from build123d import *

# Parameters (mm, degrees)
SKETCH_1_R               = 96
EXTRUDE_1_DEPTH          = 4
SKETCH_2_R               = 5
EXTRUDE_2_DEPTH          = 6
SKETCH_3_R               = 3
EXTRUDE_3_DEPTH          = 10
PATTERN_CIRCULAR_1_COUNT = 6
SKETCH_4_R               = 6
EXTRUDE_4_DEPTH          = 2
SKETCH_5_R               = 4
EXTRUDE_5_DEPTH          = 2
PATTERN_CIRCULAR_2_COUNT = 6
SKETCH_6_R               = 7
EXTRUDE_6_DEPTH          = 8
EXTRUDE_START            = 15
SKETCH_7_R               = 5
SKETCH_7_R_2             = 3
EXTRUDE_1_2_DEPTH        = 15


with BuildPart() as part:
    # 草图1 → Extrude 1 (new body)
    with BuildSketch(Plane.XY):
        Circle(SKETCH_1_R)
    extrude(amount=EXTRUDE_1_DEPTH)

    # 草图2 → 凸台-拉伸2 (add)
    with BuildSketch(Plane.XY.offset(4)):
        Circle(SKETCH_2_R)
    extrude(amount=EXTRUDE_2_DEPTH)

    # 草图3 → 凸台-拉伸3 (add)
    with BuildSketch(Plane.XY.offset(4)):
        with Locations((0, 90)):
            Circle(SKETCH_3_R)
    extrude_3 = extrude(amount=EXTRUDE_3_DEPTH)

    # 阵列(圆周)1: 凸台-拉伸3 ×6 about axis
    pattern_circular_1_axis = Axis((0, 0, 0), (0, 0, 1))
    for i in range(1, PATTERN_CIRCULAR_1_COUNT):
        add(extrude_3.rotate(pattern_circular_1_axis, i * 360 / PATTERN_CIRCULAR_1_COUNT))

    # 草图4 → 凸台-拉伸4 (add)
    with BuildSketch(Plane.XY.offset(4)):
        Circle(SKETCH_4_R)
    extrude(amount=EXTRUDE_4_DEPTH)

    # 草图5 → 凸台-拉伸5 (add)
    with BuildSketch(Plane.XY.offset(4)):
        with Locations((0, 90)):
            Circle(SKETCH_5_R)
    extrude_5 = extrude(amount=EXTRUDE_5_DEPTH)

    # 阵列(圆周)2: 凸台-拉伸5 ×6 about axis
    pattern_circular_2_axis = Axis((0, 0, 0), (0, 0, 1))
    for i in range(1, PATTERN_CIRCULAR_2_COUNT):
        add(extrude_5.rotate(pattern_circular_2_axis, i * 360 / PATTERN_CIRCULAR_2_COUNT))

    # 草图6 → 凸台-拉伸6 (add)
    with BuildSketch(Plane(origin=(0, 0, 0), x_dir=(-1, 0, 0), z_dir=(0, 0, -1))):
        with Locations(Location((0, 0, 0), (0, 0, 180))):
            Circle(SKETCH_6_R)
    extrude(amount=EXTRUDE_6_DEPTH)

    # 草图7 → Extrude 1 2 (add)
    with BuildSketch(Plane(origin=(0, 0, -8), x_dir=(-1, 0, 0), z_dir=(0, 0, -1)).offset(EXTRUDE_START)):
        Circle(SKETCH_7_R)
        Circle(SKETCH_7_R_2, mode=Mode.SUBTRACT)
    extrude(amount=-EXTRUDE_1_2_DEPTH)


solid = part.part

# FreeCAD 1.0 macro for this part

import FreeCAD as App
import Part
import Sketcher
from FreeCAD import Vector
Q = App.Units.Quantity

doc = App.newDocument("Part")
params = doc.addObject("Spreadsheet::Sheet", "Params")
for row, (alias, value) in enumerate([
    ("sketch1_diameter", "192 mm"),
    ("pad1_length", "4 mm"),
    ("sketch2_diameter", "10 mm"),
    ("pad2_length", "6 mm"),
    ("sketch3_diameter", "6 mm"),
    ("pad3_length", "10 mm"),
    ("sketch4_diameter", "12 mm"),
    ("pad4_length", "2 mm"),
    ("sketch5_diameter", "8 mm"),
    ("pad5_length", "2 mm"),
    ("sketch6_diameter", "14 mm"),
    ("pad6_length", "8 mm"),
    ("sketch7_diameter", "10 mm"),
    ("sketch7_diameter2", "6 mm"),
    ("pad7_length", "15 mm"),
], start=1):
    params.set(f"A{row}", alias)
    params.set(f"B{row}", "=" + value)
    params.setAlias(f"B{row}", alias)

body = doc.addObject("PartDesign::Body", "Body")

# Sketch on XY plane
sketch1 = doc.addObject("Sketcher::SketchObject", "Sketch")
body.addObject(sketch1)
sketch1.AttachmentSupport = (doc.XY_Plane, [""])
sketch1.MapMode = "FlatFace"
sketch1.addGeometry(Part.Circle(Vector(0, 0, 0), Vector(0, 0, 1), 96), False)
sketch1.addConstraint(Sketcher.Constraint("Coincident", 0, 3, -1, 1))
sketch1.addConstraint(Sketcher.Constraint("Diameter", 0, Q("192 mm")))
sketch1.setExpression("Constraints[1]", "Params.sketch1_diameter")
pad1 = doc.addObject("PartDesign::Pad", "Pad")
body.addObject(pad1)
pad1.Profile = sketch1
pad1.setExpression("Length", "Params.pad1_length")

# Sketch on XY plane
sketch2 = doc.addObject("Sketcher::SketchObject", "Sketch001")
body.addObject(sketch2)
sketch2.AttachmentSupport = (doc.XY_Plane, [""])
sketch2.MapMode = "FlatFace"
sketch2.AttachmentOffset = App.Placement(Vector(0, 0, 4), App.Rotation())
sketch2.addGeometry(Part.Circle(Vector(0, 0, 0), Vector(0, 0, 1), 5), False)
sketch2.addConstraint(Sketcher.Constraint("Coincident", 0, 3, -1, 1))
sketch2.addConstraint(Sketcher.Constraint("Diameter", 0, Q("10 mm")))
sketch2.setExpression("Constraints[1]", "Params.sketch2_diameter")
pad2 = doc.addObject("PartDesign::Pad", "Pad001")
body.addObject(pad2)
pad2.Profile = sketch2
pad2.setExpression("Length", "Params.pad2_length")

# Sketch on XY plane
sketch3 = doc.addObject("Sketcher::SketchObject", "Sketch002")
body.addObject(sketch3)
sketch3.AttachmentSupport = (doc.XY_Plane, [""])
sketch3.MapMode = "FlatFace"
sketch3.AttachmentOffset = App.Placement(Vector(0, 0, 4), App.Rotation())
sketch3.addGeometry(Part.Circle(Vector(0, 90, 0), Vector(0, 0, 1), 3), False)
sketch3.addConstraint(Sketcher.Constraint("PointOnObject", 0, 3, -2))
sketch3.addConstraint(Sketcher.Constraint("Diameter", 0, Q("6 mm")))
sketch3.addConstraint(Sketcher.Constraint("DistanceY", -1, 1, 0, 3, Q("90 mm")))
sketch3.setExpression("Constraints[1]", "Params.sketch3_diameter")
pad3 = doc.addObject("PartDesign::Pad", "Pad002")
body.addObject(pad3)
pad3.Profile = sketch3
pad3.setExpression("Length", "Params.pad3_length")
doc.recompute()

polarpattern = doc.addObject("PartDesign::PolarPattern", "PolarPattern")
body.addObject(polarpattern)
polarpattern.Originals = [pad3]
polarpattern.Axis = (doc.Z_Axis, [""])
polarpattern.Angle = 360
polarpattern.Occurrences = 6
body.Tip = polarpattern

# Sketch on XY plane
sketch4 = doc.addObject("Sketcher::SketchObject", "Sketch003")
body.addObject(sketch4)
sketch4.AttachmentSupport = (doc.XY_Plane, [""])
sketch4.MapMode = "FlatFace"
sketch4.AttachmentOffset = App.Placement(Vector(0, 0, 4), App.Rotation())
sketch4.addGeometry(Part.Circle(Vector(0, 0, 0), Vector(0, 0, 1), 6), False)
sketch4.addConstraint(Sketcher.Constraint("Coincident", 0, 3, -1, 1))
sketch4.addConstraint(Sketcher.Constraint("Diameter", 0, Q("12 mm")))
sketch4.setExpression("Constraints[1]", "Params.sketch4_diameter")
pad4 = doc.addObject("PartDesign::Pad", "Pad003")
body.addObject(pad4)
pad4.Profile = sketch4
pad4.setExpression("Length", "Params.pad4_length")

# Sketch on XY plane
sketch5 = doc.addObject("Sketcher::SketchObject", "Sketch004")
body.addObject(sketch5)
sketch5.AttachmentSupport = (doc.XY_Plane, [""])
sketch5.MapMode = "FlatFace"
sketch5.AttachmentOffset = App.Placement(Vector(0, 0, 4), App.Rotation())
sketch5.addGeometry(Part.Circle(Vector(0, 90, 0), Vector(0, 0, 1), 4), False)
sketch5.addConstraint(Sketcher.Constraint("PointOnObject", 0, 3, -2))
sketch5.addConstraint(Sketcher.Constraint("Diameter", 0, Q("8 mm")))
sketch5.addConstraint(Sketcher.Constraint("DistanceY", -1, 1, 0, 3, Q("90 mm")))
sketch5.setExpression("Constraints[1]", "Params.sketch5_diameter")
pad5 = doc.addObject("PartDesign::Pad", "Pad004")
body.addObject(pad5)
pad5.Profile = sketch5
pad5.setExpression("Length", "Params.pad5_length")
doc.recompute()

polarpattern2 = doc.addObject("PartDesign::PolarPattern", "PolarPattern001")
body.addObject(polarpattern2)
polarpattern2.Originals = [pad5]
polarpattern2.Axis = (doc.Z_Axis, [""])
polarpattern2.Angle = 360
polarpattern2.Occurrences = 6
body.Tip = polarpattern2

# Sketch on XY plane
sketch6 = doc.addObject("Sketcher::SketchObject", "Sketch005")
body.addObject(sketch6)
sketch6.AttachmentSupport = (doc.XY_Plane, [""])
sketch6.MapMode = "FlatFace"
sketch6.addGeometry(Part.Circle(Vector(0, 0, 0), Vector(0, 0, 1), 7), False)
sketch6.addConstraint(Sketcher.Constraint("Coincident", 0, 3, -1, 1))
sketch6.addConstraint(Sketcher.Constraint("Diameter", 0, Q("14 mm")))
sketch6.setExpression("Constraints[1]", "Params.sketch6_diameter")
pad6 = doc.addObject("PartDesign::Pad", "Pad005")
body.addObject(pad6)
pad6.Profile = sketch6
pad6.setExpression("Length", "Params.pad6_length")
pad6.Reversed = True

# Sketch on XY plane
sketch7 = doc.addObject("Sketcher::SketchObject", "Sketch006")
body.addObject(sketch7)
sketch7.AttachmentSupport = (doc.XY_Plane, [""])
sketch7.MapMode = "FlatFace"
sketch7.AttachmentOffset = App.Placement(Vector(0, 0, -23), App.Rotation())
sketch7.addGeometry(Part.Circle(Vector(0, 0, 0), Vector(0, 0, 1), 5), False)
sketch7.addGeometry(Part.Circle(Vector(0, 0, 0), Vector(0, 0, 1), 3), False)
sketch7.addConstraint(Sketcher.Constraint("Coincident", 0, 3, -1, 1))
sketch7.addConstraint(Sketcher.Constraint("Coincident", 1, 3, -1, 1))
sketch7.addConstraint(Sketcher.Constraint("Diameter", 0, Q("10 mm")))
sketch7.addConstraint(Sketcher.Constraint("Diameter", 1, Q("6 mm")))
sketch7.setExpression("Constraints[2]", "Params.sketch7_diameter")
sketch7.setExpression("Constraints[3]", "Params.sketch7_diameter2")
pad7 = doc.addObject("PartDesign::Pad", "Pad006")
body.addObject(pad7)
pad7.Profile = sketch7
pad7.setExpression("Length", "Params.pad7_length")

doc.recompute()
